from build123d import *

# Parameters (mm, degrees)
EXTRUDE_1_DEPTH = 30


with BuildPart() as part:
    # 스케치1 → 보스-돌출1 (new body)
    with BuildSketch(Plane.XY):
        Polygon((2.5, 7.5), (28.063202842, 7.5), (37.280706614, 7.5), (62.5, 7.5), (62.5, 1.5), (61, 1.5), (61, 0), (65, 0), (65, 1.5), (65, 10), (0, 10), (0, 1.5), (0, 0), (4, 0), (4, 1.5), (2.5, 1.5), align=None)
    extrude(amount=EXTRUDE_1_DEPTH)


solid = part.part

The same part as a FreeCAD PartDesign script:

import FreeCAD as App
import Part
import Sketcher

V = App.Vector
Q = App.Units.Quantity

doc = App.newDocument("Part")
body = doc.addObject("PartDesign::Body", "Body")

sketch1 = body.newObject("Sketcher::SketchObject", "Sketch")
sketch1.AttachmentSupport = (doc.getObject("XY_Plane"), [""])
sketch1.MapMode = "FlatFace"
sketch1.addGeometry(Part.LineSegment(V(2.5, 7.5, 0), V(62.5, 7.5, 0)), False)
sketch1.addGeometry(Part.LineSegment(V(62.5, 7.5, 0), V(62.5, 1.5, 0)), False)
sketch1.addGeometry(Part.LineSegment(V(62.5, 1.5, 0), V(61, 1.5, 0)), False)
sketch1.addGeometry(Part.LineSegment(V(61, 1.5, 0), V(61, 0, 0)), False)
sketch1.addGeometry(Part.LineSegment(V(61, 0, 0), V(65, 0, 0)), False)
sketch1.addGeometry(Part.LineSegment(V(65, 0, 0), V(65, 10, 0)), False)
sketch1.addGeometry(Part.LineSegment(V(65, 10, 0), V(0, 10, 0)), False)
sketch1.addGeometry(Part.LineSegment(V(0, 10, 0), V(0, 0, 0)), False)
sketch1.addGeometry(Part.LineSegment(V(0, 0, 0), V(4, 0, 0)), False)
sketch1.addGeometry(Part.LineSegment(V(4, 0, 0), V(4, 1.5, 0)), False)
sketch1.addGeometry(Part.LineSegment(V(4, 1.5, 0), V(2.5, 1.5, 0)), False)
sketch1.addGeometry(Part.LineSegment(V(2.5, 1.5, 0), V(2.5, 7.5, 0)), False)
sketch1.addConstraint(Sketcher.Constraint("Coincident", 0, 2, 1, 1))
sketch1.addConstraint(Sketcher.Constraint("Coincident", 1, 2, 2, 1))
sketch1.addConstraint(Sketcher.Constraint("Coincident", 2, 2, 3, 1))
sketch1.addConstraint(Sketcher.Constraint("Coincident", 3, 2, 4, 1))
sketch1.addConstraint(Sketcher.Constraint("Coincident", 4, 2, 5, 1))
sketch1.addConstraint(Sketcher.Constraint("Coincident", 5, 2, 6, 1))
sketch1.addConstraint(Sketcher.Constraint("Coincident", 6, 2, 7, 1))
sketch1.addConstraint(Sketcher.Constraint("Coincident", 7, 2, 8, 1))
sketch1.addConstraint(Sketcher.Constraint("Coincident", 8, 2, 9, 1))
sketch1.addConstraint(Sketcher.Constraint("Coincident", 9, 2, 10, 1))
sketch1.addConstraint(Sketcher.Constraint("Coincident", 10, 2, 11, 1))
sketch1.addConstraint(Sketcher.Constraint("Coincident", 11, 2, 0, 1))
sketch1.addConstraint(Sketcher.Constraint("Horizontal", 0))
sketch1.addConstraint(Sketcher.Constraint("Vertical", 1))
sketch1.addConstraint(Sketcher.Constraint("Horizontal", 2))
sketch1.addConstraint(Sketcher.Constraint("Vertical", 3))
sketch1.addConstraint(Sketcher.Constraint("Horizontal", 4))
sketch1.addConstraint(Sketcher.Constraint("Vertical", 5))
sketch1.addConstraint(Sketcher.Constraint("Horizontal", 6))
sketch1.addConstraint(Sketcher.Constraint("Vertical", 7))
sketch1.addConstraint(Sketcher.Constraint("Horizontal", 8))
sketch1.addConstraint(Sketcher.Constraint("Vertical", 9))
sketch1.addConstraint(Sketcher.Constraint("Horizontal", 10))
sketch1.addConstraint(Sketcher.Constraint("Vertical", 11))
sketch1.addConstraint(Sketcher.Constraint("Coincident", 7, 2, -1, 1))
sketch1.addConstraint(Sketcher.Constraint("PointOnObject", 3, 2, -1))
sketch1.addConstraint(Sketcher.Constraint("Horizontal", 2, 2, 9, 2))
sketch1.addConstraint(Sketcher.Constraint("Equal", 4, 8))
sketch1.addConstraint(Sketcher.Constraint("Equal", 2, 10))
sketch1.addConstraint(Sketcher.Constraint("Equal", 10, 3))
sketch1.addConstraint(Sketcher.Constraint("DistanceX", 0, 1, 0, 2, Q("60 mm")))
sketch1.addConstraint(Sketcher.Constraint("DistanceX", 4, 1, 4, 2, Q("4 mm")))
sketch1.addConstraint(Sketcher.Constraint("DistanceX", 6, 2, 6, 1, Q("65 mm")))
sketch1.addConstraint(Sketcher.Constraint("DistanceY", 1, 2, 1, 1, Q("6 mm")))
sketch1.addConstraint(Sketcher.Constraint("DistanceY", 5, 1, 5, 2, Q("10 mm")))
pad1 = body.newObject("PartDesign::Pad", "Pad")
pad1.Profile = sketch1
pad1.Length = 30

doc.recompute()
